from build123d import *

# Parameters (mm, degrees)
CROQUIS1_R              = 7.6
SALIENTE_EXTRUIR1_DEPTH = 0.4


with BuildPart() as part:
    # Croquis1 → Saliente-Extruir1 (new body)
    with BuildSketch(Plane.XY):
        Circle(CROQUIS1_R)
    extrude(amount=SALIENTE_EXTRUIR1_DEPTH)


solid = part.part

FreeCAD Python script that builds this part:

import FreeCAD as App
import Part
import Sketcher
Q = App.Units.Quantity

doc = App.newDocument("Part")
body = doc.addObject("PartDesign::Body", "Body")

# Sketch on XY plane
sketch1 = body.newObject("Sketcher::SketchObject", "Sketch")
sketch1.AttachmentSupport = (doc.getObject("XY_Plane"), [""])
sketch1.MapMode = "FlatFace"
sketch1.addGeometry(Part.Circle(App.Vector(0, 0, 0), App.Vector(0, 0, 1), 8), False)
sketch1.addConstraint([
    Sketcher.Constraint("Coincident", 0, 3, -1, 1),
    Sketcher.Constraint("Diameter", 0, Q("15.2 mm")),
])
pad1 = body.newObject("PartDesign::Pad", "Pad")
pad1.Profile = sketch1
pad1.Length = 0.4

doc.recompute()
